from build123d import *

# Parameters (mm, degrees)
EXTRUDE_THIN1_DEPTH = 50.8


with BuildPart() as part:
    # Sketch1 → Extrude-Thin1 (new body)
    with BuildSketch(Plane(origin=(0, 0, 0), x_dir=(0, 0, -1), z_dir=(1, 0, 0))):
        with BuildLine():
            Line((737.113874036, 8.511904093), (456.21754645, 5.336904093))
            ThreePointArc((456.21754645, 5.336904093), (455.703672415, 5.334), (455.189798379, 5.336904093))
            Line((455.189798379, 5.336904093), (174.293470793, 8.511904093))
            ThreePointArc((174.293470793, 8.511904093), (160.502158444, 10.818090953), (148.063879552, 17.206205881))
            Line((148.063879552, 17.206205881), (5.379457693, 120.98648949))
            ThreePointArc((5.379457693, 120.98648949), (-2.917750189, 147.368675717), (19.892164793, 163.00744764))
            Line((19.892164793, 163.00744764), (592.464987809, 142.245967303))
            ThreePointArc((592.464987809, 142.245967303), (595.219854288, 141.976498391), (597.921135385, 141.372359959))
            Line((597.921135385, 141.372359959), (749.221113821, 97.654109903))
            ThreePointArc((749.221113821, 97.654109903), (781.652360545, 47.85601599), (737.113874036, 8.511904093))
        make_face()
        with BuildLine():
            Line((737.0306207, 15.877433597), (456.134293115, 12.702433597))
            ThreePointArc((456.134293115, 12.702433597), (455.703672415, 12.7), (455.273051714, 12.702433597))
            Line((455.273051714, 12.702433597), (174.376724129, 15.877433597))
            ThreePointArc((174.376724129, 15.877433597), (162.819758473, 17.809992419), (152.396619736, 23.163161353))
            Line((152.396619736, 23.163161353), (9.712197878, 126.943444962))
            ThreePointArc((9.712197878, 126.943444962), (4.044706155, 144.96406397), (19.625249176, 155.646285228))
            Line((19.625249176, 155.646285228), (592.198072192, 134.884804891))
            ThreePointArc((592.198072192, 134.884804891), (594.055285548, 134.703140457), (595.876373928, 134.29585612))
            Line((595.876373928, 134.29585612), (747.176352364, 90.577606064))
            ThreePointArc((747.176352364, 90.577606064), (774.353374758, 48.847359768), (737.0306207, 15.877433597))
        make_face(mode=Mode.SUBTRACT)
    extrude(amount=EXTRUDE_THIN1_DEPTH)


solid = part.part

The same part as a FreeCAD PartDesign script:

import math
import FreeCAD as App
import Part
import Sketcher
from FreeCAD import Vector
Q = App.Units.Quantity

doc = App.newDocument("Part")
body = doc.addObject("PartDesign::Body", "Body")

# Sketch on YZ plane
sketch1 = doc.addObject("Sketcher::SketchObject", "Sketch")
body.addObject(sketch1)
sketch1.AttachmentSupport = (doc.YZ_Plane, [""])
sketch1.MapMode = "FlatFace"
sketch1.addGeometry(Part.LineSegment(Vector(5.3, -456.2, 0), Vector(8.5, -737.1, 0)), False)
sketch1.addGeometry(Part.ArcOfCircle(Part.Circle(Vector(54, -736.6, 0), Vector(0, 0, 1), 45.5), math.radians(-179), math.radians(-16)), False)
sketch1.addGeometry(Part.LineSegment(Vector(97.7, -749.2, 0), Vector(141.4, -597.9, 0)), False)
sketch1.addGeometry(Part.ArcOfCircle(Part.Circle(Vector(119.7, -591.6, 0), Vector(0, 0, 1), 22.6), math.radians(-16.12), math.radians(-2.08)), False)
sketch1.addGeometry(Part.LineSegment(Vector(142.2, -592.5, 0), Vector(163, -19.9, 0)), False)
sketch1.addGeometry(Part.ArcOfCircle(Part.Circle(Vector(139.8, -19.1, 0), Vector(0, 0, 1), 23.2), math.radians(-2), math.radians(144)), False)
sketch1.addGeometry(Part.LineSegment(Vector(121, -5.4, 0), Vector(17.2, -148.1, 0)), False)
sketch1.addGeometry(Part.ArcOfCircle(Part.Circle(Vector(54, -174.8, 0), Vector(0, 0, 1), 45.5), math.radians(144), math.radians(179)), False)
sketch1.addGeometry(Part.LineSegment(Vector(8.5, -174.3, 0), Vector(5.3, -455.2, 0)), False)
sketch1.addGeometry(Part.ArcOfCircle(Part.Circle(Vector(50.8, -455.7, 0), Vector(0, 0, 1), 45.5), math.radians(179.35), math.radians(180.65)), False)
sketch1.addGeometry(Part.LineSegment(Vector(15.9, -737, 0), Vector(12.7, -456.1, 0)), False)
sketch1.addGeometry(Part.ArcOfCircle(Part.Circle(Vector(50.8, -455.7, 0), Vector(0, 0, 1), 38.1), math.radians(179.35), math.radians(180.65)), False)
sketch1.addGeometry(Part.LineSegment(Vector(12.7, -455.3, 0), Vector(15.9, -174.4, 0)), False)
sketch1.addGeometry(Part.ArcOfCircle(Part.Circle(Vector(54, -174.8, 0), Vector(0, 0, 1), 38.1), math.radians(144), math.radians(179)), False)
sketch1.addGeometry(Part.LineSegment(Vector(23.2, -152.4, 0), Vector(126.9, -9.7, 0)), False)
sketch1.addGeometry(Part.ArcOfCircle(Part.Circle(Vector(139.8, -19, 0), Vector(0, 0, 1), 15.9), math.radians(-2), math.radians(144)), False)
sketch1.addGeometry(Part.LineSegment(Vector(155.6, -19.6, 0), Vector(134.9, -592.2, 0)), False)
sketch1.addGeometry(Part.ArcOfCircle(Part.Circle(Vector(119.7, -591.6, 0), Vector(0, 0, 1), 15.2), math.radians(-16.12), math.radians(-2.08)), False)
sketch1.addGeometry(Part.LineSegment(Vector(134.3, -595.9, 0), Vector(90.6, -747.2, 0)), False)
sketch1.addGeometry(Part.ArcOfCircle(Part.Circle(Vector(54, -736.6, 0), Vector(0, 0, 1), 38.1), math.radians(-179), math.radians(-16)), False)
sketch1.addConstraint(Sketcher.Constraint("Tangent", 0, 2, 1, 1))
sketch1.addConstraint(Sketcher.Constraint("Tangent", 1, 2, 2, 1))
sketch1.addConstraint(Sketcher.Constraint("Tangent", 2, 2, 3, 1))
sketch1.addConstraint(Sketcher.Constraint("Tangent", 3, 2, 4, 1))
sketch1.addConstraint(Sketcher.Constraint("Tangent", 4, 2, 5, 1))
sketch1.addConstraint(Sketcher.Constraint("Tangent", 5, 2, 6, 1))
sketch1.addConstraint(Sketcher.Constraint("Tangent", 6, 2, 7, 1))
sketch1.addConstraint(Sketcher.Constraint("Tangent", 7, 2, 8, 1))
sketch1.addConstraint(Sketcher.Constraint("Tangent", 8, 2, 9, 1))
sketch1.addConstraint(Sketcher.Constraint("Tangent", 9, 2, 0, 1))
sketch1.addConstraint(Sketcher.Constraint("Tangent", 10, 2, 11, 2))
sketch1.addConstraint(Sketcher.Constraint("Tangent", 11, 1, 12, 1))
sketch1.addConstraint(Sketcher.Constraint("Tangent", 12, 2, 13, 2))
sketch1.addConstraint(Sketcher.Constraint("Tangent", 13, 1, 14, 1))
sketch1.addConstraint(Sketcher.Constraint("Tangent", 14, 2, 15, 2))
sketch1.addConstraint(Sketcher.Constraint("Tangent", 15, 1, 16, 1))
sketch1.addConstraint(Sketcher.Constraint("Tangent", 16, 2, 17, 2))
sketch1.addConstraint(Sketcher.Constraint("Tangent", 17, 1, 18, 1))
sketch1.addConstraint(Sketcher.Constraint("Tangent", 18, 2, 19, 2))
sketch1.addConstraint(Sketcher.Constraint("Tangent", 19, 1, 10, 1))
sketch1.addConstraint(Sketcher.Constraint("Coincident", 11, 3, 9, 3))
sketch1.addConstraint(Sketcher.Constraint("Coincident", 13, 3, 7, 3))
sketch1.addConstraint(Sketcher.Constraint("Coincident", 15, 3, 5, 3))
sketch1.addConstraint(Sketcher.Constraint("Coincident", 17, 3, 3, 3))
sketch1.addConstraint(Sketcher.Constraint("Coincident", 19, 3, 1, 3))
sketch1.addConstraint(Sketcher.Constraint("Equal", 1, 7))
sketch1.addConstraint(Sketcher.Constraint("Equal", 13, 19))
sketch1.addConstraint(Sketcher.Constraint("Parallel", 0, 10))
sketch1.addConstraint(Sketcher.Constraint("Parallel", 6, 14))
sketch1.addConstraint(Sketcher.Constraint("Parallel", 4, 16))
sketch1.addConstraint(Sketcher.Constraint("Vertical", 1, 3, 7, 3))
sketch1.addConstraint(Sketcher.Constraint("Equal", 0, 8))
sketch1.addConstraint(Sketcher.Constraint("Radius", 11, Q("1.5000002 in")))
sketch1.addConstraint(Sketcher.Constraint("Radius", 13, Q("1.5 in")))
sketch1.addConstraint(Sketcher.Constraint("Radius", 17, Q("0.6 in")))
sketch1.addConstraint(Sketcher.Constraint("Radius", 1, Q("1.79 in")))
sketch1.addConstraint(Sketcher.Constraint("DistanceY", 1, 3, -1, 1, Q("29 in")))
sketch1.addConstraint(Sketcher.Constraint("DistanceX", -1, 1, 9, 3, Q("1.9999998 in")))
sketch1.addConstraint(Sketcher.Constraint("Radius", 5, Q("0.915 in")))
sketch1.addConstraint(Sketcher.Constraint("DistanceY", 5, 3, -1, 1, Q("0.75 in")))
sketch1.addConstraint(Sketcher.Constraint("DistanceX", -1, 1, 1, 3, Q("2.125 in")))
sketch1.addConstraint(Sketcher.Constraint("DistanceY", 3, 3, 10, 2, Q("5.3351 in")))
sketch1.addConstraint(Sketcher.Constraint("DistanceY", 8, 2, -1, 1, 455.189798))
sketch1.addConstraint(Sketcher.Constraint("DistanceX", 7, 2, 6, 2, 8.694302))
sketch1.addConstraint(Sketcher.Constraint("DistanceX", 11, 3, 16, 2, 84.084801))
pad1 = doc.addObject("PartDesign::Pad", "Pad")
body.addObject(pad1)
pad1.Profile = sketch1
pad1.Length = Q("2 in")

doc.recompute()
